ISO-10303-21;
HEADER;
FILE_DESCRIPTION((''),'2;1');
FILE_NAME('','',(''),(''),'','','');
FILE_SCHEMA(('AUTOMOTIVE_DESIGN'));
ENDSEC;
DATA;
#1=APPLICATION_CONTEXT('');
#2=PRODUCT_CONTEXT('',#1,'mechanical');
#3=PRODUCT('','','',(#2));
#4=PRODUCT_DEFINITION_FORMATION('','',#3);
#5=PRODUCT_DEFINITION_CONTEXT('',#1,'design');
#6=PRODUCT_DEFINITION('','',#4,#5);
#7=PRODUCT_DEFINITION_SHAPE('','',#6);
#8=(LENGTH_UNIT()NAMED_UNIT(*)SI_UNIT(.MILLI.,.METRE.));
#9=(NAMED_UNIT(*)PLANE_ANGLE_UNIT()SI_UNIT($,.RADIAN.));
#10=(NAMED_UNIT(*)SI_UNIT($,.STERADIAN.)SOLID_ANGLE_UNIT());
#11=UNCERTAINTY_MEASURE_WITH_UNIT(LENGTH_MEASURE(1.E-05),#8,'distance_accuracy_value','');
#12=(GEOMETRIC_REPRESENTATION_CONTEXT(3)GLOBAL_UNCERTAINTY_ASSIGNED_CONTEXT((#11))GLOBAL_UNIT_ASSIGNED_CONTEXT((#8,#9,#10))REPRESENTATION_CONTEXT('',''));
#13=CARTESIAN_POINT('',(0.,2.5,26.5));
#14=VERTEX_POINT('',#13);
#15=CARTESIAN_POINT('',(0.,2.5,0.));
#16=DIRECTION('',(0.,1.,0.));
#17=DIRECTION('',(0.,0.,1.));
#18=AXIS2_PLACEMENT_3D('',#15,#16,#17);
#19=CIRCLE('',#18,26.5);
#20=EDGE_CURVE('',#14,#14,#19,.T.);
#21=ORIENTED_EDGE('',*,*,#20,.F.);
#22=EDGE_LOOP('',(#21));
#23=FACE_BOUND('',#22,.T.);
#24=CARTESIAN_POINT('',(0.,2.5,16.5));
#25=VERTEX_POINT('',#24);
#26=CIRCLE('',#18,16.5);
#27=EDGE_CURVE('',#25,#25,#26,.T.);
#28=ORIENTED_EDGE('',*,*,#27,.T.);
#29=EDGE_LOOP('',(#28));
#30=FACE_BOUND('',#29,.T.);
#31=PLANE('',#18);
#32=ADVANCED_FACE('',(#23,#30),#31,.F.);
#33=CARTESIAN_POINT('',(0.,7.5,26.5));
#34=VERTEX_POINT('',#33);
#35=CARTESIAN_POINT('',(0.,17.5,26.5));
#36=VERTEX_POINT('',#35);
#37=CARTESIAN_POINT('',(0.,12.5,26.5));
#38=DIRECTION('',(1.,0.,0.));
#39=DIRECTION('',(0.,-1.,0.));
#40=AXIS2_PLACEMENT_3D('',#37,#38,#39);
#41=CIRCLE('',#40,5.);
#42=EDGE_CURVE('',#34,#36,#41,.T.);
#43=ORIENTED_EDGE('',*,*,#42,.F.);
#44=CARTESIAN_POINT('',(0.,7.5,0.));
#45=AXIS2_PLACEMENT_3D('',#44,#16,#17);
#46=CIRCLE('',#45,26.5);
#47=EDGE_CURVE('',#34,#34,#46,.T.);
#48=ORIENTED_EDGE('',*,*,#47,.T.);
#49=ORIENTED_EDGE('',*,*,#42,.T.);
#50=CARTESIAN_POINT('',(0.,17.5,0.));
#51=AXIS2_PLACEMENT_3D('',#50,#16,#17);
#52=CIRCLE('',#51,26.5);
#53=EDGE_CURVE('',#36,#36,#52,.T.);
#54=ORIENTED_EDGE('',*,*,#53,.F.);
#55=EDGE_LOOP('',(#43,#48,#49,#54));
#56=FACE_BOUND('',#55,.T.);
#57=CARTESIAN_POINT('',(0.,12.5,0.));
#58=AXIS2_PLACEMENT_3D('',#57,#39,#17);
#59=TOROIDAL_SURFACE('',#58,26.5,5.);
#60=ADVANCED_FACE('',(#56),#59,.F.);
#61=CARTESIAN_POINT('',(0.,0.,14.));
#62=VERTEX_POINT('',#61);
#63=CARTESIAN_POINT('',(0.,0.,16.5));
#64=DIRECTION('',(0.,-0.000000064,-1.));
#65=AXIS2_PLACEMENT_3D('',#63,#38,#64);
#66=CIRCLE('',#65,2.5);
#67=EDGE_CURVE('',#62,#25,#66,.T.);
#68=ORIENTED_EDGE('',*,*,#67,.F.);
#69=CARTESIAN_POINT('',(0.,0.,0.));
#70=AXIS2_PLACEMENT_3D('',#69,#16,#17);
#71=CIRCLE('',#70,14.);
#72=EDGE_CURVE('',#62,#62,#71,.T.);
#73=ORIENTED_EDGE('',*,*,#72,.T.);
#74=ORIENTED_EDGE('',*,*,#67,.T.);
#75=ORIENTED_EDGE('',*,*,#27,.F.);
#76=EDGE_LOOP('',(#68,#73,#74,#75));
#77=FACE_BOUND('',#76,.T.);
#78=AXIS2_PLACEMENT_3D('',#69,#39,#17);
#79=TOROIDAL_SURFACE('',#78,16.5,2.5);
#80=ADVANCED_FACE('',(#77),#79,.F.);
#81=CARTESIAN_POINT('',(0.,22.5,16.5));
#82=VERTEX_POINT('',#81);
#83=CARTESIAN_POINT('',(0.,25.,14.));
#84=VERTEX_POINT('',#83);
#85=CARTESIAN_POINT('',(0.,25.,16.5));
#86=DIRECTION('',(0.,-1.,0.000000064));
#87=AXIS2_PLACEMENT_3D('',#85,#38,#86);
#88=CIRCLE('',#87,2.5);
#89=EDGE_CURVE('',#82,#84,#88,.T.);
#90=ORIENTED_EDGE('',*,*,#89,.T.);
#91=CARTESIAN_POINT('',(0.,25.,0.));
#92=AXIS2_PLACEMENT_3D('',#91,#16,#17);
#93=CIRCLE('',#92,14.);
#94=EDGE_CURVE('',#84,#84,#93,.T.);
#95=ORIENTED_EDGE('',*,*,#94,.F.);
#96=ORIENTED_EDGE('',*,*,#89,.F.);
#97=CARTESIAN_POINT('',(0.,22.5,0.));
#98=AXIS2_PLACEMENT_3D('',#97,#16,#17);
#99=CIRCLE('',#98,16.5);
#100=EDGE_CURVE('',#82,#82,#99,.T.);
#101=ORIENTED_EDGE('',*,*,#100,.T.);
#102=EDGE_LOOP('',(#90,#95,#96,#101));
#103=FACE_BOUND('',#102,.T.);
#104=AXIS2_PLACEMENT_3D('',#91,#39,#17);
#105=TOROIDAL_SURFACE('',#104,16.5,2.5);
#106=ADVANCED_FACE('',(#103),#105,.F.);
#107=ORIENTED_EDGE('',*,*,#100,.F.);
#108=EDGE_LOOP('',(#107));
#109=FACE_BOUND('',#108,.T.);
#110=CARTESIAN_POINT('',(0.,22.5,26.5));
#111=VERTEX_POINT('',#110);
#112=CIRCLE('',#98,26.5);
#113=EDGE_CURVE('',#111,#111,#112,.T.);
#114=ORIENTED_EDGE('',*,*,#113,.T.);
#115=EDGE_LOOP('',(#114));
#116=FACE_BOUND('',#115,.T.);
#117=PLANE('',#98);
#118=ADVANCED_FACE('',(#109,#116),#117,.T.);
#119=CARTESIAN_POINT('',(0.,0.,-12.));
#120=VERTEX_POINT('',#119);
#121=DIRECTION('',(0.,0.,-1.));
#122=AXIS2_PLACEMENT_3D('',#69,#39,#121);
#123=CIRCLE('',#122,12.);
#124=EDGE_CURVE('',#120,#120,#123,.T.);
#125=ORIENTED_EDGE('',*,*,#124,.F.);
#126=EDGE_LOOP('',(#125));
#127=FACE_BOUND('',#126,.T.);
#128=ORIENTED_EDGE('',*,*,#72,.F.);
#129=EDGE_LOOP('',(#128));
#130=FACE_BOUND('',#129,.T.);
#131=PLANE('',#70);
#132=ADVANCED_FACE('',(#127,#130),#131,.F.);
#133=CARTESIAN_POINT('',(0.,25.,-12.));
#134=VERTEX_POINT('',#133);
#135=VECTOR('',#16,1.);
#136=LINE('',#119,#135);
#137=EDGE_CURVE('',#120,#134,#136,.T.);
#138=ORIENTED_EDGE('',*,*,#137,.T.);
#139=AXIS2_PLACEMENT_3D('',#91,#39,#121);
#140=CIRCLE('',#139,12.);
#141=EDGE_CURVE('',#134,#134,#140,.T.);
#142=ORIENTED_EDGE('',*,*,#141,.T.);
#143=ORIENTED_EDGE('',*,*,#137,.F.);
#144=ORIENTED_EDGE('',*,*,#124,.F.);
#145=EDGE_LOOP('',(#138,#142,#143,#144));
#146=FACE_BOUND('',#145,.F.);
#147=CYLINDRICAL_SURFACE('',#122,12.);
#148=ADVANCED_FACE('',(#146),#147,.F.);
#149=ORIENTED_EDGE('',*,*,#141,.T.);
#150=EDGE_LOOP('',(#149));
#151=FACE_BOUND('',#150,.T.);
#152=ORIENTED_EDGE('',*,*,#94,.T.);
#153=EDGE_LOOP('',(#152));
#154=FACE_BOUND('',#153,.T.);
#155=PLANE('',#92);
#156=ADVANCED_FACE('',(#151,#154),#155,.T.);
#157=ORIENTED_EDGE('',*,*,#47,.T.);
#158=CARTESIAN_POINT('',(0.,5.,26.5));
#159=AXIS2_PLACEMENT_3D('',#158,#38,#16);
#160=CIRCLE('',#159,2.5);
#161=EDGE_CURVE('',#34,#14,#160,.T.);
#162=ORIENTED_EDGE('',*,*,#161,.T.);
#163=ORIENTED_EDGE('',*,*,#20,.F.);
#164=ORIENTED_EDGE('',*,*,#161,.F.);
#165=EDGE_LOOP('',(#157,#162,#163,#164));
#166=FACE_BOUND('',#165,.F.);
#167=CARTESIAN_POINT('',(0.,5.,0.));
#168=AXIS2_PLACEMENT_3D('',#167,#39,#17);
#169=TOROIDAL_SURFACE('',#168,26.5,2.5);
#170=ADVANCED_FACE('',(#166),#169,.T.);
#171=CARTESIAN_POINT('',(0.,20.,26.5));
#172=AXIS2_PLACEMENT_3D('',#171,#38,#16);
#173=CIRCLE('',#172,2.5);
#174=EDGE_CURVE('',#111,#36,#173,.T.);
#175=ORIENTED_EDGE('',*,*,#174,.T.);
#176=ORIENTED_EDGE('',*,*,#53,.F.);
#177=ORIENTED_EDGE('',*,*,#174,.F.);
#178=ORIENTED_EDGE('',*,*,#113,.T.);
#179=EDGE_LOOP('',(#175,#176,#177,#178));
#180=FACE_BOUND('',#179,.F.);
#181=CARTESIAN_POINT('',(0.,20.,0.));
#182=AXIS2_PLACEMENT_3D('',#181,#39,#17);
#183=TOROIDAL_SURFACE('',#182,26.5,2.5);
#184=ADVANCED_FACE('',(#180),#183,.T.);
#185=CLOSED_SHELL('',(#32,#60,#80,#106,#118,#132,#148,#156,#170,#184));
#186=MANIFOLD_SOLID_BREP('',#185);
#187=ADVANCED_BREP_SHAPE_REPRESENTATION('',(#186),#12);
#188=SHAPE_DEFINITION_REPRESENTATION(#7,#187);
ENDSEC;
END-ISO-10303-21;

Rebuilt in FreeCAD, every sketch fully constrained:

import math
import FreeCAD as App
import Part
import Sketcher
from FreeCAD import Vector

doc = App.newDocument("Part")
params = doc.addObject("Spreadsheet::Sheet", "Params")
for row, (alias, value) in enumerate([
    ("sketch1_radius", "5 mm"),
    ("sketch1_radius2", "2.5 mm"),
    ("sketch1_height", "14 mm"),
    ("sketch1_height2", "10 mm"),
    ("revolution_angle", "360 deg"),
    ("sketch2_diameter", "24 mm"),
], start=1):
    params.set(f"A{row}", alias)
    params.set(f"B{row}", "=" + value)
    params.setAlias(f"B{row}", alias)

body = doc.addObject("PartDesign::Body", "Body")

# Sketch on YZ plane
sketch1 = body.newObject("Sketcher::SketchObject", "Sketch")
sketch1.AttachmentSupport = (doc.getObject("YZ_Plane"), [""])
sketch1.MapMode = "FlatFace"
sketch1.addGeometry([
    Part.LineSegment(Vector(0, 14, 0), Vector(0, 0, 0)),  # 0
    Part.LineSegment(Vector(0, 0, 0), Vector(25, 0, 0)),  # 1
    Part.LineSegment(Vector(25, 0, 0), Vector(25, 14, 0)),  # 2
    Part.ArcOfCircle(Part.Circle(Vector(25, 16.5, 0), Vector(0, 0, 1), 2.5), math.radians(180), math.radians(270)),  # 3
    Part.LineSegment(Vector(22.5, 16.5, 0), Vector(22.5, 26.5, 0)),  # 4
    Part.ArcOfCircle(Part.Circle(Vector(20, 26.5, 0), Vector(0, 0, 1), 2.5), math.radians(0), math.radians(180)),  # 5
    Part.ArcOfCircle(Part.Circle(Vector(12.5, 26.5, 0), Vector(0, 0, 1), 5), math.radians(180), math.radians(360)),  # 6
    Part.ArcOfCircle(Part.Circle(Vector(5, 26.5, 0), Vector(0, 0, 1), 2.5), math.radians(0), math.radians(180)),  # 7
    Part.LineSegment(Vector(2.5, 26.5, 0), Vector(2.5, 16.5, 0)),  # 8
    Part.ArcOfCircle(Part.Circle(Vector(0, 16.5, 0), Vector(0, 0, 1), 2.5), math.radians(-90), math.radians(0)),  # 9
], False)
sketch1.addConstraint([
    Sketcher.Constraint("Coincident", 0, 2, 1, 1),
    Sketcher.Constraint("Coincident", 1, 2, 2, 1),
    Sketcher.Constraint("Coincident", 2, 2, 3, 2),
    Sketcher.Constraint("Tangent", 3, 1, 4, 1),
    Sketcher.Constraint("Tangent", 4, 2, 5, 1),
    Sketcher.Constraint("Tangent", 5, 2, 6, 2),
    Sketcher.Constraint("Tangent", 6, 1, 7, 1),
    Sketcher.Constraint("Tangent", 7, 2, 8, 1),
    Sketcher.Constraint("Tangent", 8, 2, 9, 2),
    Sketcher.Constraint("Coincident", 9, 1, 0, 1),
    Sketcher.Constraint("Vertical", 0),
    Sketcher.Constraint("Horizontal", 1),
    Sketcher.Constraint("Vertical", 2),
    Sketcher.Constraint("Vertical", 4),
    Sketcher.Constraint("Vertical", 8),
    Sketcher.Constraint("Coincident", 0, 2, -1, 1),
    Sketcher.Constraint("Equal", 3, 5),
    Sketcher.Constraint("Equal", 5, 7),
    Sketcher.Constraint("Equal", 7, 9),
    Sketcher.Constraint("PointOnObject", 9, 3, -2),
    Sketcher.Constraint("Horizontal", 5, 3, 6, 3),
    Sketcher.Constraint("Horizontal", 6, 3, 7, 3),
    Sketcher.Constraint("Horizontal", 3, 3, 9, 3),
    Sketcher.Constraint("Vertical", 3, 3, 1, 2),
    Sketcher.Constraint("Radius", 6, 5.0),
    Sketcher.Constraint("Radius", 3, 2.5),
    Sketcher.Constraint("DistanceY", 0, 2, 0, 1, 14.0),
    Sketcher.Constraint("DistanceY", 4, 1, 4, 2, 10.0),
])
sketch1.setExpression("Constraints[24]", "Params.sketch1_radius")
sketch1.setExpression("Constraints[25]", "Params.sketch1_radius2")
sketch1.setExpression("Constraints[26]", "Params.sketch1_height")
sketch1.setExpression("Constraints[27]", "Params.sketch1_height2")
revolution = body.newObject("PartDesign::Revolution", "Revolution")
revolution.Profile = sketch1
revolution.ReferenceAxis = (sketch1, ["H_Axis"])
revolution.setExpression("Angle", "Params.revolution_angle")

# Sketch on XZ plane
sketch2 = body.newObject("Sketcher::SketchObject", "Sketch001")
sketch2.AttachmentSupport = (doc.getObject("XZ_Plane"), [""])
sketch2.MapMode = "FlatFace"
sketch2.addGeometry(Part.Circle(Vector(0, 0, 0), Vector(0, 0, 1), 12), False)
sketch2.addConstraint([
    Sketcher.Constraint("Coincident", 0, 3, -1, 1),
    Sketcher.Constraint("Diameter", 0, 24.0),
])
sketch2.setExpression("Constraints[1]", "Params.sketch2_diameter")
pocket1 = body.newObject("PartDesign::Pocket", "Pocket")
pocket1.Profile = sketch2
pocket1.Type = "ThroughAll"

doc.recompute()
